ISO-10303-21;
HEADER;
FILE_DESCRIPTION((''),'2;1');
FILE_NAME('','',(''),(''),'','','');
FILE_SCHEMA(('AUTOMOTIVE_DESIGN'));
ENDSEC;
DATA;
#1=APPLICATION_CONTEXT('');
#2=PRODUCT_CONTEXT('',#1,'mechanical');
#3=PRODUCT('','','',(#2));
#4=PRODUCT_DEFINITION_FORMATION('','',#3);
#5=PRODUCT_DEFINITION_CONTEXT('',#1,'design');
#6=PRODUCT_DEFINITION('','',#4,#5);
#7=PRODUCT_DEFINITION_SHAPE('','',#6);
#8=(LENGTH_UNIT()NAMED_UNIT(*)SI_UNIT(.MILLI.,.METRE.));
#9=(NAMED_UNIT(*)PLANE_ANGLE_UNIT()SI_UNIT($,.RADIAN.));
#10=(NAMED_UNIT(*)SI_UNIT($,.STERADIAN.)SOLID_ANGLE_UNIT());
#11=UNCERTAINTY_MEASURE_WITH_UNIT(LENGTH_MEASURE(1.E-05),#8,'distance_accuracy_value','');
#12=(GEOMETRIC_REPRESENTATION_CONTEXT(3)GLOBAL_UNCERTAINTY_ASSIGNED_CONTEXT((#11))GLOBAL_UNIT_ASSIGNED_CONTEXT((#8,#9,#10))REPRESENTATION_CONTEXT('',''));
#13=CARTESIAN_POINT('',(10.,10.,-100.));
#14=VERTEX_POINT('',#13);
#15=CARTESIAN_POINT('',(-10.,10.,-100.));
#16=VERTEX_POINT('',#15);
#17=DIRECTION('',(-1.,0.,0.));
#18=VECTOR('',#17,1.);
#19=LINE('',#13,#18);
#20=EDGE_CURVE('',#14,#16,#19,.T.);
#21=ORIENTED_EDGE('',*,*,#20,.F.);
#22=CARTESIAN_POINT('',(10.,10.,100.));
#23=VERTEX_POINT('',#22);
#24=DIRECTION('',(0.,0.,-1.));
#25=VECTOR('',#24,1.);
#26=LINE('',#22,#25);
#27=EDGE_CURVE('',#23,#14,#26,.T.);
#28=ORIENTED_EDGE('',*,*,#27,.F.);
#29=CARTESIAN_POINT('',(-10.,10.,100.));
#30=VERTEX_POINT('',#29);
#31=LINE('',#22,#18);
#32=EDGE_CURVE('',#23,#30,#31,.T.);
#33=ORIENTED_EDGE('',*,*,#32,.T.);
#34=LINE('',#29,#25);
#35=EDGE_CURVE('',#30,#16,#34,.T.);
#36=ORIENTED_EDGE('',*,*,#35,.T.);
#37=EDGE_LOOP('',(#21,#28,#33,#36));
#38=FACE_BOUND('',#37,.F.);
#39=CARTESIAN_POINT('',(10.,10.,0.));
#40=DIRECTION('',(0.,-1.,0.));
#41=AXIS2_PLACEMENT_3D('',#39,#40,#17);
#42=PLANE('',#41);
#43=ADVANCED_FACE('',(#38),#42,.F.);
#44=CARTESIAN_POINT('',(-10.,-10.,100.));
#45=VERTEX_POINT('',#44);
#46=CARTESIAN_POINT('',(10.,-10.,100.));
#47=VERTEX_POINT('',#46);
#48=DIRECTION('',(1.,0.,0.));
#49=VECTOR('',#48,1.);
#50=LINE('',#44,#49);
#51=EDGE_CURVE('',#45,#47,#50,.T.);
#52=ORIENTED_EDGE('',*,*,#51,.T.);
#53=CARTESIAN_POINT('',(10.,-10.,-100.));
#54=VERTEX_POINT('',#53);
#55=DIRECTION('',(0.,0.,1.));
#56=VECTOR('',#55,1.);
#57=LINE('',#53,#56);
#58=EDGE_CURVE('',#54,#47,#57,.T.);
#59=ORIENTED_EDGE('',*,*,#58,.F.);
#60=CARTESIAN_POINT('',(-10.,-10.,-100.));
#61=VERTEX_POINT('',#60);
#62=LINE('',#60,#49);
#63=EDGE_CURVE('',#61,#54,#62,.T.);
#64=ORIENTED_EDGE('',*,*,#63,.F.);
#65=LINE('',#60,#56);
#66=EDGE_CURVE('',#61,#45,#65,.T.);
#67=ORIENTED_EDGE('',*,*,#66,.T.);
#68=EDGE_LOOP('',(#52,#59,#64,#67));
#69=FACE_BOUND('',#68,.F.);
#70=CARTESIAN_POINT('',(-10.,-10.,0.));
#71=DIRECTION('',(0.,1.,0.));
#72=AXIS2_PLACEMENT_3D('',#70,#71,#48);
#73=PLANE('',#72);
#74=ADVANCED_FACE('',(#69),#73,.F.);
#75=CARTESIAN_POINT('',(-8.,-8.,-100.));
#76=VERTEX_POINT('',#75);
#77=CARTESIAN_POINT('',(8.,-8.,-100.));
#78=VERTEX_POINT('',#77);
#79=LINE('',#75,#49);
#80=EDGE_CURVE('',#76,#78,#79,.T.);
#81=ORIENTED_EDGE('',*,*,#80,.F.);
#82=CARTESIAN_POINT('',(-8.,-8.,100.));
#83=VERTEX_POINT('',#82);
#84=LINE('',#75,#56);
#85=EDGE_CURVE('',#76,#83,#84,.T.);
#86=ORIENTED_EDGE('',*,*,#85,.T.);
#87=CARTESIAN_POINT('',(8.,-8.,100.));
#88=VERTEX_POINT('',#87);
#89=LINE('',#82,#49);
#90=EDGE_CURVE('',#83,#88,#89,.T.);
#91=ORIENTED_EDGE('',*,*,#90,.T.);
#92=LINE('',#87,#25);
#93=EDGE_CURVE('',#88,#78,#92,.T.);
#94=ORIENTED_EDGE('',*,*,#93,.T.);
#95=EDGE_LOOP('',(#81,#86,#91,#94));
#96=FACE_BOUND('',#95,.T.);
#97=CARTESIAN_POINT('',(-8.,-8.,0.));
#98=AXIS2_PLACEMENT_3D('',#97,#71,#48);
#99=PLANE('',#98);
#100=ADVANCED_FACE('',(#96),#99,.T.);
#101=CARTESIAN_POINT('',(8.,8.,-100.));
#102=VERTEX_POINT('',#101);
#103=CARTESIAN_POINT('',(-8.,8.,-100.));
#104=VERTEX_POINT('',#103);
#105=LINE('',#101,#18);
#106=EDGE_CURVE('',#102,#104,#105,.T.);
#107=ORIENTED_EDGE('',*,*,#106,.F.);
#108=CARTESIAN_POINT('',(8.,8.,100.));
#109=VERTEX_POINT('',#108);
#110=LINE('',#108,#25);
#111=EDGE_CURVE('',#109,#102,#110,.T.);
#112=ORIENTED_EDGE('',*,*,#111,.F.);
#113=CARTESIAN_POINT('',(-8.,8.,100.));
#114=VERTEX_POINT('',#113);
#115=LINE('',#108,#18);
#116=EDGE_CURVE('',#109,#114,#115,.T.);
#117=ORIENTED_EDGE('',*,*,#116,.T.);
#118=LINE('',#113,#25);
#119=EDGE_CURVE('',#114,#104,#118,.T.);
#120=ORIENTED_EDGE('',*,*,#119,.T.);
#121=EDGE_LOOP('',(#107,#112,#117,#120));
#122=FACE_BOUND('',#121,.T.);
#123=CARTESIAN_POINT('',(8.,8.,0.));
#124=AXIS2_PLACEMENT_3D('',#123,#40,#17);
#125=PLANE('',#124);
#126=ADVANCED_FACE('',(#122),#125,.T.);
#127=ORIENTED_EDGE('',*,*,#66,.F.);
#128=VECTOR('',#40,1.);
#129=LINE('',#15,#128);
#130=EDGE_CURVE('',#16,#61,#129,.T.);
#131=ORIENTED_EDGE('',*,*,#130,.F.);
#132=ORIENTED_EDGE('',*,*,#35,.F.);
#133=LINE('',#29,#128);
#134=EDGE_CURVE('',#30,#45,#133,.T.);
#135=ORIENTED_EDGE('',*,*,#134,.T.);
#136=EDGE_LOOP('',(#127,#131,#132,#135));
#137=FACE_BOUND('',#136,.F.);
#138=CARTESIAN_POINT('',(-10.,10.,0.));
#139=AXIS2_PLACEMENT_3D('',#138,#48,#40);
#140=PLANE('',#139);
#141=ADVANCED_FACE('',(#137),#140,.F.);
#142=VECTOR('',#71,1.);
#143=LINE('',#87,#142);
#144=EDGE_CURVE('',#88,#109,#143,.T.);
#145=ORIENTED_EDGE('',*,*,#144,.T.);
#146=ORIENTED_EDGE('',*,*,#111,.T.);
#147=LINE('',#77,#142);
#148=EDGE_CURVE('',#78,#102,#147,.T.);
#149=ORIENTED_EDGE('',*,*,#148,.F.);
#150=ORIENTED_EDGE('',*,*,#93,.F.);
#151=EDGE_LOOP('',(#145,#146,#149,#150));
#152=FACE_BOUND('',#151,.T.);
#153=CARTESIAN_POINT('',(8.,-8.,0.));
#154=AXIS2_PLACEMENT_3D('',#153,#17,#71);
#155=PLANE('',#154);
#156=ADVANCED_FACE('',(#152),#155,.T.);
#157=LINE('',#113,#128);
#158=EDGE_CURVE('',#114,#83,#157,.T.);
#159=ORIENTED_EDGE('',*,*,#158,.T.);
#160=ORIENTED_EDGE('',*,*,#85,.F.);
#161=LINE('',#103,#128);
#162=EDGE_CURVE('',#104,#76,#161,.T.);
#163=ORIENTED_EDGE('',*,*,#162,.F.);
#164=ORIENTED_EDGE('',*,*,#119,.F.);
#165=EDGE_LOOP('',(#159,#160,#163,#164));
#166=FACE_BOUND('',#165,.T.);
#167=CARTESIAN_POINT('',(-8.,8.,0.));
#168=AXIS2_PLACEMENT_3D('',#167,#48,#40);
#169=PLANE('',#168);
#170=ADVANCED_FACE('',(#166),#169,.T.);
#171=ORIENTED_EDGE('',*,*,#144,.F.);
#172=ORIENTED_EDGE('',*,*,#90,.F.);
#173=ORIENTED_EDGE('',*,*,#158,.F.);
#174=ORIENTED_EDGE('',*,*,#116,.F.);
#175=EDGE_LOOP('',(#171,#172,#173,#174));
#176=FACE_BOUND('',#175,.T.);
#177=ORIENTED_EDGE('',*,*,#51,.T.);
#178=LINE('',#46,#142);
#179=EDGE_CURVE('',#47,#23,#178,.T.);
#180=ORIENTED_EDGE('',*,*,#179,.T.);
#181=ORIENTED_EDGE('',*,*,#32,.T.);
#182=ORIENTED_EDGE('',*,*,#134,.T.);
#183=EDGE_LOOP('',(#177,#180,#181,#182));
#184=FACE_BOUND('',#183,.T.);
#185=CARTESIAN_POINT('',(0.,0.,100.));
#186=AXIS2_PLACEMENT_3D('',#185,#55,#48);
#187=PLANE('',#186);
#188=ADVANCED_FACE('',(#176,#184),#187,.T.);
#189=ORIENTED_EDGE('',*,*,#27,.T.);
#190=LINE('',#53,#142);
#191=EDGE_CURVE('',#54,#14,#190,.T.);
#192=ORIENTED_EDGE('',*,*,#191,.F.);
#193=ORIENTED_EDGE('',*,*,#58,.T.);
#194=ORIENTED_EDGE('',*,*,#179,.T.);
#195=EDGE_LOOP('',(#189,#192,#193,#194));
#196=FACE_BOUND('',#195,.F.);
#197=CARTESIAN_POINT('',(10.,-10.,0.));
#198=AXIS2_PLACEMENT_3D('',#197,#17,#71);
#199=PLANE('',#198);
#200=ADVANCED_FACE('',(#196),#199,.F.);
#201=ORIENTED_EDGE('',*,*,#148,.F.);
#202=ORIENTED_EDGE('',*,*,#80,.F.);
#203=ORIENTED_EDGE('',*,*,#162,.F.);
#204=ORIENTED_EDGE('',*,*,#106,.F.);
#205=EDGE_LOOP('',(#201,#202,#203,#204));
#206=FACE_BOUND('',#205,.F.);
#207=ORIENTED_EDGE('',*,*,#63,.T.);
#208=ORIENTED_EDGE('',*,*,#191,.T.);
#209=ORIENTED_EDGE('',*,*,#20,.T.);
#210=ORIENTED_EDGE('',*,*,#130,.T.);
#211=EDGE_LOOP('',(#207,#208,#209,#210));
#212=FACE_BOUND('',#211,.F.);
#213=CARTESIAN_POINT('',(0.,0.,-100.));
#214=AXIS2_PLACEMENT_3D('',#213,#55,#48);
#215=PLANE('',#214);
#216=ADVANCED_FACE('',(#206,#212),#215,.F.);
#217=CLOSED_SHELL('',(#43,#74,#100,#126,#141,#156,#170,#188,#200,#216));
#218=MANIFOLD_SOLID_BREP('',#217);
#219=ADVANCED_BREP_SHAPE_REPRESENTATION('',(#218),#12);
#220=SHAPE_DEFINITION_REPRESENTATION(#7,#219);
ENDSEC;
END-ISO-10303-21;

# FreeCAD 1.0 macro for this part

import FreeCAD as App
import Part
import Sketcher
from FreeCAD import Vector


def add_polygon(sketch, points):
    """Adds a closed chain of lines whose ends are joined by coincident constraints."""
    first, n = sketch.GeometryCount, len(points)
    for a, b in zip(points, points[1:] + points[:1]):
        sketch.addGeometry(Part.LineSegment(App.Vector(*a, 0), App.Vector(*b, 0)), False)
    for i in range(n):
        sketch.addConstraint(Sketcher.Constraint("Coincident", first + i, 2, first + (i + 1) % n, 1))

doc = App.newDocument("Part")
body = doc.addObject("PartDesign::Body", "Body")

# Sketch on XY plane
sketch1 = doc.addObject("Sketcher::SketchObject", "Sketch")
body.addObject(sketch1)
sketch1.AttachmentSupport = (doc.XY_Plane, [""])
sketch1.MapMode = "FlatFace"
add_polygon(sketch1, [(-10, 10), (-10, -10), (10, -10), (10, 10)])  # lines 0-3
add_polygon(sketch1, [(8, -8), (-8, -8), (-8, 8), (8, 8)])  # lines 4-7
sketch1.addConstraint([
    Sketcher.Constraint("Vertical", 0),
    Sketcher.Constraint("Horizontal", 1),
    Sketcher.Constraint("Vertical", 2),
    Sketcher.Constraint("Horizontal", 3),
    Sketcher.Constraint("Horizontal", 4),
    Sketcher.Constraint("Vertical", 5),
    Sketcher.Constraint("Horizontal", 6),
    Sketcher.Constraint("Vertical", 7),
    Sketcher.Constraint("Symmetric", 0, 2, 2, 2, -1, 1),
    Sketcher.Constraint("Symmetric", 4, 2, 6, 2, -1, 1),
    Sketcher.Constraint("Equal", 3, 0),
    Sketcher.Constraint("Equal", 6, 5),
    Sketcher.Constraint("DistanceX", 1, 1, 1, 2, 20.0),
    Sketcher.Constraint("DistanceX", 0, 2, 4, 2, 2.0),
])
pad1 = doc.addObject("PartDesign::Pad", "Pad")
body.addObject(pad1)
pad1.Profile = sketch1
pad1.Length = 200
pad1.Midplane = True

doc.recompute()
